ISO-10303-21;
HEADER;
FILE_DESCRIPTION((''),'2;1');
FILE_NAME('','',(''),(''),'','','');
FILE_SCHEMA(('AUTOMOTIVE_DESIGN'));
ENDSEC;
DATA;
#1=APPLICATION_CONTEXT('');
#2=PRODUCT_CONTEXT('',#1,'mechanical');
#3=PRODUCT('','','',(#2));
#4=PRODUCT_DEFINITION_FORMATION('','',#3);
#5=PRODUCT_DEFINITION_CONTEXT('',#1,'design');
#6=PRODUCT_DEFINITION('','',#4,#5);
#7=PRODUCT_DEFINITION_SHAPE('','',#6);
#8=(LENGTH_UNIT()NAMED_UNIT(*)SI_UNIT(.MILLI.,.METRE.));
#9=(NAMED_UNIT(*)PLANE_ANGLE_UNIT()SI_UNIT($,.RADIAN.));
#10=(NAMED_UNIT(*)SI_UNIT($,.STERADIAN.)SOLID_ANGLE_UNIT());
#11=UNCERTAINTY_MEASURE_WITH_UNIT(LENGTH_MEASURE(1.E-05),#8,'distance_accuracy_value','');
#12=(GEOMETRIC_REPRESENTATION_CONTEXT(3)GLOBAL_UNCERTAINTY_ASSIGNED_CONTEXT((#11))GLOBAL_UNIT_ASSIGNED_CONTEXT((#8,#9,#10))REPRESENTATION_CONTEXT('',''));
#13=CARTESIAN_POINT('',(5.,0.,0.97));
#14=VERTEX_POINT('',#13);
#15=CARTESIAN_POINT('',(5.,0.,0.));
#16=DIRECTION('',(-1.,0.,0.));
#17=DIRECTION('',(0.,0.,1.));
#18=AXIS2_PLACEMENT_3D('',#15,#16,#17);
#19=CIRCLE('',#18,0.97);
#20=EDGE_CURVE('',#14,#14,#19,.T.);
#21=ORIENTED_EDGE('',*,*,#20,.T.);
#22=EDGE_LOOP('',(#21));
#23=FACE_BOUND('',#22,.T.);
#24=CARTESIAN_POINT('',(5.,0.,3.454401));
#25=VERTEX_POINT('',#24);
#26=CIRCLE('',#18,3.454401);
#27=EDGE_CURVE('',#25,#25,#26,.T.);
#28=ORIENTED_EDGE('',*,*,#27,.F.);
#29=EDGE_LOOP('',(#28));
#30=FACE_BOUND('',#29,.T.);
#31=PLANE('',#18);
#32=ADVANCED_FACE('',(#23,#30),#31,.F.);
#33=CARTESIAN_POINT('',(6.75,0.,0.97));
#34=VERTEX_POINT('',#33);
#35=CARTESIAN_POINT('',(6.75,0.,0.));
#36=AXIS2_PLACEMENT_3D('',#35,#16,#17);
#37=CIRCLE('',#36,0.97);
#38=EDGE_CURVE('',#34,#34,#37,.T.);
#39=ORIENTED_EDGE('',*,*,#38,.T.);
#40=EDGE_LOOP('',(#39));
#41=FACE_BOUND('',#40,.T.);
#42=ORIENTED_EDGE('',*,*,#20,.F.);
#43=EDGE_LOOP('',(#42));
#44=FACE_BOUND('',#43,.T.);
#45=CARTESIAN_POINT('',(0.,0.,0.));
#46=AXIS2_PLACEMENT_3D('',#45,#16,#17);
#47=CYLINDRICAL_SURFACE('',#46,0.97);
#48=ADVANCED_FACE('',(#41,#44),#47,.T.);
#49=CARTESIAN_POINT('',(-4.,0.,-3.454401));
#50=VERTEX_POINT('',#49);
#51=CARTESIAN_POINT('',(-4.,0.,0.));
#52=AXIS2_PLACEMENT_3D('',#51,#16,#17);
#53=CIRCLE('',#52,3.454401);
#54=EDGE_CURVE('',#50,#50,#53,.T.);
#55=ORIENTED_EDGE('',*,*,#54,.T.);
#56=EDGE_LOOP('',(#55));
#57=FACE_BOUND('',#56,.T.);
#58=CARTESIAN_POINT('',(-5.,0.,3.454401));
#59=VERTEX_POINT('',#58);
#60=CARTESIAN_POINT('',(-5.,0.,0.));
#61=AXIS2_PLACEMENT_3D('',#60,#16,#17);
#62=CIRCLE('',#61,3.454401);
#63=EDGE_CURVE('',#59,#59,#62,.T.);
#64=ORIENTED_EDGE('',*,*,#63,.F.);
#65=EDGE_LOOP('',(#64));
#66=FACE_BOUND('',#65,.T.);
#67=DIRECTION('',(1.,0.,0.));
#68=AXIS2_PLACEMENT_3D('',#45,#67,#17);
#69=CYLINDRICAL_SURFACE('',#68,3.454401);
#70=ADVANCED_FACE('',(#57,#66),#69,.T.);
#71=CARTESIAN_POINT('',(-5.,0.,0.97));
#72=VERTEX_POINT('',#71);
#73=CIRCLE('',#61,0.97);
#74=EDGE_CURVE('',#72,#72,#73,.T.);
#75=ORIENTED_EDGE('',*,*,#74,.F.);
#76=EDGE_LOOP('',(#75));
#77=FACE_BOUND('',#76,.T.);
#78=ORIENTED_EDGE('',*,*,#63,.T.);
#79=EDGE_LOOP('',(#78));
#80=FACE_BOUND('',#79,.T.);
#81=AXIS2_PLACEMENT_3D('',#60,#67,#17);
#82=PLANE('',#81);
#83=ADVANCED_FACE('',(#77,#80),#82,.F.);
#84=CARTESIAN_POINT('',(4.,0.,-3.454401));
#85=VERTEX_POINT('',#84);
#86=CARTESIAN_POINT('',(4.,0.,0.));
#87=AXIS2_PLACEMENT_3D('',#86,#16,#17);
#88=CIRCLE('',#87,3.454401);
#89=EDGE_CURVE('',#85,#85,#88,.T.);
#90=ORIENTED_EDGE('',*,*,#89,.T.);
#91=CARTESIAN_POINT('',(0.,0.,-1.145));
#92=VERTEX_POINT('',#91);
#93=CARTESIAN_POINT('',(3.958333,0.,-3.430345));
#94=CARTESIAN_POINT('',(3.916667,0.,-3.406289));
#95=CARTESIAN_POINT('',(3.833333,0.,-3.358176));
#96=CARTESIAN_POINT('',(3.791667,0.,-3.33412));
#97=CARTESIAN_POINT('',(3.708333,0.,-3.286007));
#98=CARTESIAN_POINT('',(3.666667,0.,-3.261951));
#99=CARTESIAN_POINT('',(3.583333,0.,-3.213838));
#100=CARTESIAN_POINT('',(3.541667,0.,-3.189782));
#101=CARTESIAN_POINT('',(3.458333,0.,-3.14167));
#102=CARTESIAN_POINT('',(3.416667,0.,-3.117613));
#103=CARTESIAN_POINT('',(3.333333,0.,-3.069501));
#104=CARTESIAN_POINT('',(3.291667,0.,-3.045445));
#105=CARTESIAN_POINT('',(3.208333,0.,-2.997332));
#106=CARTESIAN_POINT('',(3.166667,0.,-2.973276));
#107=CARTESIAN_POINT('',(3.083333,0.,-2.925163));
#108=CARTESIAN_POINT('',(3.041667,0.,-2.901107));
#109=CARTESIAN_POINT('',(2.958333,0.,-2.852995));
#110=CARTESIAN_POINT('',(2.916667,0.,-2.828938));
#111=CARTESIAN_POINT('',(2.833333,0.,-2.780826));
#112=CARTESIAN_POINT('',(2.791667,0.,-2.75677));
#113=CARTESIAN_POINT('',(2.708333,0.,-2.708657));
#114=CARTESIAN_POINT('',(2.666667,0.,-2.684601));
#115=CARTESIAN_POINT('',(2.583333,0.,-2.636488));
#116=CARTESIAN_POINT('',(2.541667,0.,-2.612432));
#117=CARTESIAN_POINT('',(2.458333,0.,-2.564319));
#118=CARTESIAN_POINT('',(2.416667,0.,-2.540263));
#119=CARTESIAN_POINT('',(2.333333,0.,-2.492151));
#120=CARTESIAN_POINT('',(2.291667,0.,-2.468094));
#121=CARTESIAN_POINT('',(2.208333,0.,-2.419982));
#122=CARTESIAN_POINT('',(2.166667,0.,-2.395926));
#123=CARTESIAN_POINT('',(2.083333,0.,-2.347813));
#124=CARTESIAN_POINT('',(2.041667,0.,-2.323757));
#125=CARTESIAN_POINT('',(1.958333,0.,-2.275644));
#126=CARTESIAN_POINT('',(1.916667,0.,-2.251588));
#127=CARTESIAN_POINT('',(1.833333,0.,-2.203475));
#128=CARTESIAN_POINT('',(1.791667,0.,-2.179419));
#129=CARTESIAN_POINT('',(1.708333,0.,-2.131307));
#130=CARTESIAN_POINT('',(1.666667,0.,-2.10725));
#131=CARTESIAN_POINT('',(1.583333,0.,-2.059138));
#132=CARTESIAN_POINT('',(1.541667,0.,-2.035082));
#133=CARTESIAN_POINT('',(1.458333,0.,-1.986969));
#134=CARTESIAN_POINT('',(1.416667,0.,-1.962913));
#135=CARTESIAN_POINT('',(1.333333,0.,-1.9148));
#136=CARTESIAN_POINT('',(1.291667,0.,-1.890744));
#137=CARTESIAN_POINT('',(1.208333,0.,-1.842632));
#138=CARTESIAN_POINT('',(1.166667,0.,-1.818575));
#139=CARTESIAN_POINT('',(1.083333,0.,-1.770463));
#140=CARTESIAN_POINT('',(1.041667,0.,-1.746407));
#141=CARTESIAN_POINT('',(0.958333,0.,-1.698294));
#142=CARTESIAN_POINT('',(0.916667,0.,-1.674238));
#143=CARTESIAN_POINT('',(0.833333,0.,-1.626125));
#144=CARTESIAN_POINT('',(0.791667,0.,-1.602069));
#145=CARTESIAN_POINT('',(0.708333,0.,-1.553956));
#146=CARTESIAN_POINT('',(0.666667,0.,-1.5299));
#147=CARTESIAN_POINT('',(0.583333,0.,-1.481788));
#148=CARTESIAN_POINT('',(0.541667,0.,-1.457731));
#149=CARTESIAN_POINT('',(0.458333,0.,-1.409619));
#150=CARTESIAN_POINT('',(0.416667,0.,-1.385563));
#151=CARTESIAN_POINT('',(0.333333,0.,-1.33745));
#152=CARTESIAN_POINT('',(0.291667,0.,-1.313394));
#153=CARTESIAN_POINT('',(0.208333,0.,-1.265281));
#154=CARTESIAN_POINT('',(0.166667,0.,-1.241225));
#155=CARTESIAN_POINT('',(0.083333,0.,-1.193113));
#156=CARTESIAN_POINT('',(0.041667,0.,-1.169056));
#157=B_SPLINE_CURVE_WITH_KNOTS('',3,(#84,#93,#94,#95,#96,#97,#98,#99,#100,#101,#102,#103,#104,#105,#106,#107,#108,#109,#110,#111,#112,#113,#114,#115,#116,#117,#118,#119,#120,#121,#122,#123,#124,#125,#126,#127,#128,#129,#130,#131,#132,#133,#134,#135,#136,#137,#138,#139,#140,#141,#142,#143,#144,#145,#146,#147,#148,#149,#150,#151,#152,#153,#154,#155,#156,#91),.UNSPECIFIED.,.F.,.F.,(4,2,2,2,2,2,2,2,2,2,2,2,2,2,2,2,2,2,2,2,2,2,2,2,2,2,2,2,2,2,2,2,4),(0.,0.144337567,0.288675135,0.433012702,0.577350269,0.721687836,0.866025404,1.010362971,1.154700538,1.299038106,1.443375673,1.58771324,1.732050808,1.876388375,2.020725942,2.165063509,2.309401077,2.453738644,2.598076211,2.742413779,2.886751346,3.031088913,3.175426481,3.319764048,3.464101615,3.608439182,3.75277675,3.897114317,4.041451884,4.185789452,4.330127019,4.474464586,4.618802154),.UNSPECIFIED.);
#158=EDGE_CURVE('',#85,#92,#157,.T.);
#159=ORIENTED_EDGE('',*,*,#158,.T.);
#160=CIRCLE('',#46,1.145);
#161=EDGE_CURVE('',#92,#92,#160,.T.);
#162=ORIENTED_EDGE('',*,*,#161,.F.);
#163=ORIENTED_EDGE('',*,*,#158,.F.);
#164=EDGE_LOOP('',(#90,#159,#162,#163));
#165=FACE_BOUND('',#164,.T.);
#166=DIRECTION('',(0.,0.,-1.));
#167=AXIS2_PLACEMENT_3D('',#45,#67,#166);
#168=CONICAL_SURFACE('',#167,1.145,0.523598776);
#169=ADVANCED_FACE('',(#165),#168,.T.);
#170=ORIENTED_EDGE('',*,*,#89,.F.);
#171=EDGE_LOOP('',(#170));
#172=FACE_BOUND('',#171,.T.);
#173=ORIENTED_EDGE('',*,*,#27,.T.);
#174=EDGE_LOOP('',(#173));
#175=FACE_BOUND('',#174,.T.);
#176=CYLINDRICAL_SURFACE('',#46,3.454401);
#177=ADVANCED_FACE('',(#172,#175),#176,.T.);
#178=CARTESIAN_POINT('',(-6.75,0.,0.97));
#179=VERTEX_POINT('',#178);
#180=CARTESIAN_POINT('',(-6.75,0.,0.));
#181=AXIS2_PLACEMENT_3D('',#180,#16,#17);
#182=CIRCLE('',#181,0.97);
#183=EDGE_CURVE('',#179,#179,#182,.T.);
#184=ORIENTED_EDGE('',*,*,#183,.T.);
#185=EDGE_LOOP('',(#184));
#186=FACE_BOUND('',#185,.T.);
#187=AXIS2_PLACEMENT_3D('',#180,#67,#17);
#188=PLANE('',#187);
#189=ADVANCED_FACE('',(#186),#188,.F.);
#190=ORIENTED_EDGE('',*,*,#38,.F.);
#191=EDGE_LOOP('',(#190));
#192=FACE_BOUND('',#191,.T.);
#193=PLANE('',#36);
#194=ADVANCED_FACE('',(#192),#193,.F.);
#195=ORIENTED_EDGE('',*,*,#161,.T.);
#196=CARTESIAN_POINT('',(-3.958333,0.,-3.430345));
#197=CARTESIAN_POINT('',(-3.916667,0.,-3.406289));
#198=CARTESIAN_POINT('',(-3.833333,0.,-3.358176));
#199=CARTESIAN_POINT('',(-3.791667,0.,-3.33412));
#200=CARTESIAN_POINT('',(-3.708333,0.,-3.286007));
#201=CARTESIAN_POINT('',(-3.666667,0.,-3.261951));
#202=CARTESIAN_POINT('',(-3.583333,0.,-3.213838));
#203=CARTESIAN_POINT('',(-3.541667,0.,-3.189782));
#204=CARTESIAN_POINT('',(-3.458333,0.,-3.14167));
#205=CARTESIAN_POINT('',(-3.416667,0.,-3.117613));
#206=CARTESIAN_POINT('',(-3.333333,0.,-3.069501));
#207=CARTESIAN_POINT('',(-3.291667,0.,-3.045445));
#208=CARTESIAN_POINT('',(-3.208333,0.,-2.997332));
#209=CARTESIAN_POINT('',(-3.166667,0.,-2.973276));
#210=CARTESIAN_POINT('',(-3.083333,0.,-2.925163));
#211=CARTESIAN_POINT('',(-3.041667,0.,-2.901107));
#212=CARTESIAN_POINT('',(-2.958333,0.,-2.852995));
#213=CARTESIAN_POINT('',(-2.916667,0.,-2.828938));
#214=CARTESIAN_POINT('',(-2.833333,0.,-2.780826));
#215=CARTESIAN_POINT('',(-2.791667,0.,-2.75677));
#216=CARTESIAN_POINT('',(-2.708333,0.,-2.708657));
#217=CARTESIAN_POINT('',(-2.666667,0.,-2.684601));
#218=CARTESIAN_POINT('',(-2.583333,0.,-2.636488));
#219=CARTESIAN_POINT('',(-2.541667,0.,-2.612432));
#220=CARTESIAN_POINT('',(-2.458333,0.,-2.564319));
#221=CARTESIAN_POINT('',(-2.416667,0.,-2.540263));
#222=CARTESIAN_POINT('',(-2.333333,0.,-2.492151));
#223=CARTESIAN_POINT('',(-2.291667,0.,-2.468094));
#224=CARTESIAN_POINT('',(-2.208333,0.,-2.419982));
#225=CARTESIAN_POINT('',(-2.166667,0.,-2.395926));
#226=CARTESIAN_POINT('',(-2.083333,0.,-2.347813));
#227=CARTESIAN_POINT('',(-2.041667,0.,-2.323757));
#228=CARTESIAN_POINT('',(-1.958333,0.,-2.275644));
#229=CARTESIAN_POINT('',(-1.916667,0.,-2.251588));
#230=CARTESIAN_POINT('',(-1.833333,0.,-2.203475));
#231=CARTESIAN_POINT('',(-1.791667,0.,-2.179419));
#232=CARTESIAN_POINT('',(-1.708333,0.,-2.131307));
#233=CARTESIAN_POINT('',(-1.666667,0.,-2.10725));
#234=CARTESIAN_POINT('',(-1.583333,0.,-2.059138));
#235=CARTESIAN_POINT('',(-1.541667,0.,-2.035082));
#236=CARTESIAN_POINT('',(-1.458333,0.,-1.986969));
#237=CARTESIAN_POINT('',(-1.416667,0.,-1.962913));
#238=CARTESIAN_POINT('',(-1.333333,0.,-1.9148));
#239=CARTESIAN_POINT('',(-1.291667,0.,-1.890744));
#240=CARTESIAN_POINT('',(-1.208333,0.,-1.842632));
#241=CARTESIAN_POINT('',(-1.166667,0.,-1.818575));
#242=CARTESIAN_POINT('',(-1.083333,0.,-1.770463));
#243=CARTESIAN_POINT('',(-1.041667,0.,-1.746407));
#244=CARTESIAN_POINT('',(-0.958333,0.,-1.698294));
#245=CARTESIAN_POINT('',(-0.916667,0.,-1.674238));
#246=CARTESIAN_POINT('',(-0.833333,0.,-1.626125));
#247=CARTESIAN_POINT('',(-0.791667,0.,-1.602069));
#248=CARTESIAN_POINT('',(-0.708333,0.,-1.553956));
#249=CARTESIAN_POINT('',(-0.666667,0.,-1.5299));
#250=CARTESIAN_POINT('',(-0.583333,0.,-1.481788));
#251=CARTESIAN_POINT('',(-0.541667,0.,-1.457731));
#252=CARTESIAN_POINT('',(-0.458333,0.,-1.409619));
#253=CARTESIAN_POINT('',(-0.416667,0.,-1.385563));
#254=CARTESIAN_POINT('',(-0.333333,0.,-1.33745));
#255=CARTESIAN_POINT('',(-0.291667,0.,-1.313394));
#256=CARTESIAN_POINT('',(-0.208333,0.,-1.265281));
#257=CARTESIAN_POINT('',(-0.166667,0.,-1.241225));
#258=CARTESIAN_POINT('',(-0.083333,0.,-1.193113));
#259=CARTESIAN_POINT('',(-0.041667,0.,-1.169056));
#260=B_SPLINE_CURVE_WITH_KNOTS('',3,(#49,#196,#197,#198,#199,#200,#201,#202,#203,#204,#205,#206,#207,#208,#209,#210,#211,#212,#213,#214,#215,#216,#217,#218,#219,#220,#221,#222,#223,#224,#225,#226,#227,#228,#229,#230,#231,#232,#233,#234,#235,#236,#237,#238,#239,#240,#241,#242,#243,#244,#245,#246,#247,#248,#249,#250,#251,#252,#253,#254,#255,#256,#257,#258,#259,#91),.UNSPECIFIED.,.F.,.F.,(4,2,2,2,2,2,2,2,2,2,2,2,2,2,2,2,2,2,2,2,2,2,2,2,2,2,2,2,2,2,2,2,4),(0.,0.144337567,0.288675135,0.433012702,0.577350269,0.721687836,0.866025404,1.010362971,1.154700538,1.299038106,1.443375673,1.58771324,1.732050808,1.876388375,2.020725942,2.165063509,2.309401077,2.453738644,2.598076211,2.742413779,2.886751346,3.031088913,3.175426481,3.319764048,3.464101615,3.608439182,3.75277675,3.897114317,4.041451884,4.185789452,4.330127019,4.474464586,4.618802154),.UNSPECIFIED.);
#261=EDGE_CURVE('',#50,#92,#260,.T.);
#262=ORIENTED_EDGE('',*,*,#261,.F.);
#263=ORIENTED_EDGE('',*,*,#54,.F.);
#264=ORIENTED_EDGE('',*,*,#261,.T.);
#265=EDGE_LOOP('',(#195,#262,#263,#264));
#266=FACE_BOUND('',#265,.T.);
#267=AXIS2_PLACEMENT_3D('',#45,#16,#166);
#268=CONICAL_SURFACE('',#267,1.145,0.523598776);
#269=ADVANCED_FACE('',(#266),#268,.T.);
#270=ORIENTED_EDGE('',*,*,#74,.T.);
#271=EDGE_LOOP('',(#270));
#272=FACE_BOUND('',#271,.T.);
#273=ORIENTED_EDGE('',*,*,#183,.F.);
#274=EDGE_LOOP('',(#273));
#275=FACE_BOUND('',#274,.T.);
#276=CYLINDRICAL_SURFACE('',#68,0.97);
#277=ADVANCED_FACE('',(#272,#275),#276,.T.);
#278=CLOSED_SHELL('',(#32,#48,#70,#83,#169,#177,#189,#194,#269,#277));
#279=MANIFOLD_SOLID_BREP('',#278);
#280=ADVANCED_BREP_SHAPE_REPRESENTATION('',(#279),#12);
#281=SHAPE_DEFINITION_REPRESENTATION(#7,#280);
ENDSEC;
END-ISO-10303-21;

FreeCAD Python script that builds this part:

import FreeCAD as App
import Part
import Sketcher
from FreeCAD import Vector
Q = App.Units.Quantity

doc = App.newDocument("Part")
body = doc.addObject("PartDesign::Body", "Body")

# Sketch on XY plane
sketch1 = body.newObject("Sketcher::SketchObject", "Sketch")
sketch1.AttachmentSupport = (doc.getObject("XY_Plane"), [""])
sketch1.MapMode = "FlatFace"
sketch1.addGeometry([
    Part.LineSegment(Vector(0, 1.1, 0), Vector(0, 0, 0)),  # 0
    Part.LineSegment(Vector(0, 0, 0), Vector(4, 0, 0)),  # 1
    Part.LineSegment(Vector(4, 0, 0), Vector(5, 0, 0)),  # 2
    Part.LineSegment(Vector(5, 0, 0), Vector(6.8, 0, 0)),  # 3
    Part.LineSegment(Vector(6.8, 0, 0), Vector(6.8, 1, 0)),  # 4
    Part.LineSegment(Vector(6.8, 1, 0), Vector(5, 1, 0)),  # 5
    Part.LineSegment(Vector(5, 1, 0), Vector(5, 3.5, 0)),  # 6
    Part.LineSegment(Vector(5, 3.5, 0), Vector(4, 3.5, 0)),  # 7
    Part.LineSegment(Vector(4, 3.5, 0), Vector(0, 1.1, 0)),  # 8
], False)
sketch1.addConstraint([
    Sketcher.Constraint("Coincident", 0, 2, 1, 1),
    Sketcher.Constraint("Coincident", 1, 2, 2, 1),
    Sketcher.Constraint("Coincident", 2, 2, 3, 1),
    Sketcher.Constraint("Coincident", 3, 2, 4, 1),
    Sketcher.Constraint("Coincident", 4, 2, 5, 1),
    Sketcher.Constraint("Coincident", 5, 2, 6, 1),
    Sketcher.Constraint("Coincident", 6, 2, 7, 1),
    Sketcher.Constraint("Coincident", 7, 2, 8, 1),
    Sketcher.Constraint("Coincident", 8, 2, 0, 1),
    Sketcher.Constraint("Vertical", 0),
    Sketcher.Constraint("Horizontal", 1),
    Sketcher.Constraint("Horizontal", 2),
    Sketcher.Constraint("Horizontal", 3),
    Sketcher.Constraint("Vertical", 4),
    Sketcher.Constraint("Horizontal", 5),
    Sketcher.Constraint("Vertical", 6),
    Sketcher.Constraint("Horizontal", 7),
    Sketcher.Constraint("Coincident", 0, 2, -1, 1),
    Sketcher.Constraint("Vertical", 2, 2, 5, 2),
    Sketcher.Constraint("Vertical", 1, 2, 7, 2),
    Sketcher.Constraint("DistanceX", 1, 1, 1, 2, Q("4 mm")),
    Sketcher.Constraint("DistanceX", 2, 1, 2, 2, Q("1 mm")),
    Sketcher.Constraint("Angle", 8, Q("-150 deg")),
    Sketcher.Constraint("DistanceX", 3, 1, 3, 2, Q("1.75 mm")),
    Sketcher.Constraint("DistanceY", 4, 1, 4, 2, Q("0.97 mm")),
    Sketcher.Constraint("DistanceY", 0, 2, 0, 1, Q("1.145 mm")),
])
revolution = body.newObject("PartDesign::Revolution", "Revolution")
revolution.Profile = sketch1
revolution.ReferenceAxis = (sketch1, ["H_Axis"])
revolution.Angle = 360
doc.recompute()

mirrored = body.newObject("PartDesign::Mirrored", "Mirrored")
mirrored.Originals = [revolution]
mirrored.MirrorPlane = (doc.getObject("YZ_Plane"), [""])
body.Tip = mirrored

doc.recompute()
